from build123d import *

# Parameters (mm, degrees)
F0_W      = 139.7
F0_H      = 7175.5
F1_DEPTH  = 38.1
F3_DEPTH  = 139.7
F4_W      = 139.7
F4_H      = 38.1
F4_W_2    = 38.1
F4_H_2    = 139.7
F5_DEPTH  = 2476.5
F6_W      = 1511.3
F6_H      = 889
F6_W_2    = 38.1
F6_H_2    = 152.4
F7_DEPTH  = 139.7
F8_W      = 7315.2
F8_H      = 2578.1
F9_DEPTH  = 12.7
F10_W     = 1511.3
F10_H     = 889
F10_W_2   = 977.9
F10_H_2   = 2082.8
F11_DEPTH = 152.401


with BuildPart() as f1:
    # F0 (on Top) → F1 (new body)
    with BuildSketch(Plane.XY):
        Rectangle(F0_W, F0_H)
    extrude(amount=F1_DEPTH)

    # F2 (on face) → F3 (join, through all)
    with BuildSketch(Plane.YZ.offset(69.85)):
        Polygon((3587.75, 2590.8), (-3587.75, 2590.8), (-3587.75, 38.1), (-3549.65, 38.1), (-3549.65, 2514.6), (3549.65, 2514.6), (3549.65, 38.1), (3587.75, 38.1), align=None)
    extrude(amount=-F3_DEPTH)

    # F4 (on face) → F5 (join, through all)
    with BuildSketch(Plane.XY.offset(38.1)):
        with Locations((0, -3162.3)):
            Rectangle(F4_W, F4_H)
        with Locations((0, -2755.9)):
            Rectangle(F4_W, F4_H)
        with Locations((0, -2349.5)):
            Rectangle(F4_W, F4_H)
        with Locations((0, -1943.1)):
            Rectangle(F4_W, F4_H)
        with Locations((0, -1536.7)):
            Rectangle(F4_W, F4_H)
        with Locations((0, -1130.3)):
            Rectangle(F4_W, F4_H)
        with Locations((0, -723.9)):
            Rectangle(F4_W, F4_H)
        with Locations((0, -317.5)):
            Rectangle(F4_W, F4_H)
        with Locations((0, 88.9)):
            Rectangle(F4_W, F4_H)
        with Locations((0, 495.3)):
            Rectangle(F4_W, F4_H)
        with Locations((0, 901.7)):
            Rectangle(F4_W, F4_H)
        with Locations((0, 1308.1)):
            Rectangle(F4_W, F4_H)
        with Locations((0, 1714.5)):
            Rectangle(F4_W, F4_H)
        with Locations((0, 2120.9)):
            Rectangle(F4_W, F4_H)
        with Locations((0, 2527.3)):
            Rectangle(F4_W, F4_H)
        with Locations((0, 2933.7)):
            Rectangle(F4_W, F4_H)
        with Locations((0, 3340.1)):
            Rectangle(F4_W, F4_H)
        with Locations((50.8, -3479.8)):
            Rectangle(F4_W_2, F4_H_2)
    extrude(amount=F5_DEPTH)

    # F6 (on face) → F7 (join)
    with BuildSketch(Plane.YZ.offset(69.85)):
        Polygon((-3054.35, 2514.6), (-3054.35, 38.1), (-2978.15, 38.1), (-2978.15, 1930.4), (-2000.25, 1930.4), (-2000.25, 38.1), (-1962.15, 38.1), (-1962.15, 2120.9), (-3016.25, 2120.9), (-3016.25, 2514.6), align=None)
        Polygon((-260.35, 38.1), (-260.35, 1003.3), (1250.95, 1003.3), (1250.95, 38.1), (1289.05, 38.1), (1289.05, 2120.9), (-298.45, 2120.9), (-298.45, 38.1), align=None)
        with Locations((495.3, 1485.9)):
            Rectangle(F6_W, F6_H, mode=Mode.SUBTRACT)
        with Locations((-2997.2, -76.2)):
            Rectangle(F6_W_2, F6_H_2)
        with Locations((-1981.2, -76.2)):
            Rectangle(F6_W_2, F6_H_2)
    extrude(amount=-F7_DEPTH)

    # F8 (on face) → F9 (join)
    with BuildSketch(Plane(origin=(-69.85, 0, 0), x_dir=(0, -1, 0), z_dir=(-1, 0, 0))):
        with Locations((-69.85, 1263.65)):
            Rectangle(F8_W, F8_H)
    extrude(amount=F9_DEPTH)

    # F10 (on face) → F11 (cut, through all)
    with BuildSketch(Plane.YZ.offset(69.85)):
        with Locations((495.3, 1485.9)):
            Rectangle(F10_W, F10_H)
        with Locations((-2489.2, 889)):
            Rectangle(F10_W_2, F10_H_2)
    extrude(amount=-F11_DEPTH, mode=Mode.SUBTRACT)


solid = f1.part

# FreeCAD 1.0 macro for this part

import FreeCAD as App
import Part
import Sketcher
Q = App.Units.Quantity


def add_polygon(sketch, points):
    """Adds a closed chain of lines whose ends are joined by coincident constraints."""
    first, n = sketch.GeometryCount, len(points)
    for a, b in zip(points, points[1:] + points[:1]):
        sketch.addGeometry(Part.LineSegment(App.Vector(*a, 0), App.Vector(*b, 0)), False)
    for i in range(n):
        sketch.addConstraint(Sketcher.Constraint("Coincident", first + i, 2, first + (i + 1) % n, 1))

doc = App.newDocument("Part")
params = doc.addObject("Spreadsheet::Sheet", "Params")
for row, (alias, value) in enumerate([
    ("sketch1_width", "5.5 in"),
    ("sketch1_height", "282.5 in"),
    ("pad1_length", "1.5 in"),
    ("sketch2_width", "282.5 in"),
    ("sketch2_width2", "1.5 in"),
    ("sketch2_height", "100.5 in"),
    ("sketch2_height2", "97.5 in"),
    ("pad2_length", "5.5 in"),
    ("sketch3_width", "5.5 in"),
    ("sketch3_width2", "1.5 in"),
    ("sketch4_width", "3 in"),
    ("sketch4_height", "82 in"),
    ("sketch4_height2", "38 in"),
    ("sketch4_height3", "35 in"),
    ("sketch4_height4", "6 in"),
    ("pad4_length", "5.5 in"),
    ("sketch5_width", "288 in"),
    ("sketch5_height", "101.5 in"),
    ("pad5_length", "0.5 in"),
    ("sketch6_height", "35 in"),
    ("sketch6_height2", "82 in"),
    ("sketch6_width", "59.5 in"),
    ("sketch6_width2", "38.5 in"),
], start=1):
    params.set(f"A{row}", alias)
    params.set(f"B{row}", "=" + value)
    params.setAlias(f"B{row}", alias)

body = doc.addObject("PartDesign::Body", "Body")

# Sketch on XY plane
sketch1 = doc.addObject("Sketcher::SketchObject", "Sketch")
body.addObject(sketch1)
sketch1.AttachmentSupport = (doc.XY_Plane, [""])
sketch1.MapMode = "FlatFace"
add_polygon(sketch1, [(-70, 3588), (-70, -3588), (70, -3588), (70, 3588)])  # lines 0-3
sketch1.addConstraint([
    Sketcher.Constraint("Vertical", 0),
    Sketcher.Constraint("Horizontal", 1),
    Sketcher.Constraint("Vertical", 2),
    Sketcher.Constraint("Horizontal", 3),
    Sketcher.Constraint("Symmetric", 0, 2, 2, 2, -1, 1),
    Sketcher.Constraint("DistanceX", 1, 1, 1, 2, Q("5.5 in")),
    Sketcher.Constraint("DistanceY", 0, 2, 0, 1, Q("282.5 in")),
])
sketch1.setExpression("Constraints[9]", "Params.sketch1_width")
sketch1.setExpression("Constraints[10]", "Params.sketch1_height")
pad1 = doc.addObject("PartDesign::Pad", "Pad")
body.addObject(pad1)
pad1.Profile = sketch1
pad1.setExpression("Length", "Params.pad1_length")

# Sketch on YZ plane
sketch2 = doc.addObject("Sketcher::SketchObject", "Sketch001")
body.addObject(sketch2)
sketch2.AttachmentSupport = (doc.YZ_Plane, [""])
sketch2.MapMode = "FlatFace"
sketch2.AttachmentOffset = App.Placement(App.Vector(0, 0, 2.75 * 25.4), App.Rotation())
add_polygon(sketch2, [(3588, 2591), (-3588, 2591), (-3588, 38), (-3550, 38), (-3550, 2515), (3550, 2515), (3550, 38), (3588, 38)])  # lines 0-7
sketch2.addConstraint([
    Sketcher.Constraint("Horizontal", 0),
    Sketcher.Constraint("Vertical", 1),
    Sketcher.Constraint("Horizontal", 2),
    Sketcher.Constraint("Vertical", 3),
    Sketcher.Constraint("Horizontal", 4),
    Sketcher.Constraint("Vertical", 5),
    Sketcher.Constraint("Horizontal", 6),
    Sketcher.Constraint("Vertical", 7),
    Sketcher.Constraint("Symmetric", 2, 2, 5, 2, -2),
    Sketcher.Constraint("Equal", 2, 6),
    Sketcher.Constraint("DistanceX", 0, 2, 0, 1, Q("282.5 in")),
    Sketcher.Constraint("DistanceX", 2, 1, 2, 2, Q("1.5 in")),
    Sketcher.Constraint("DistanceY", 1, 2, 1, 1, Q("100.5 in")),
    Sketcher.Constraint("DistanceY", 3, 1, 3, 2, Q("97.5 in")),
    Sketcher.Constraint("DistanceY", -1, 1, 0, 2, Q("102 in")),
])
sketch2.setExpression("Constraints[18]", "Params.sketch2_width")
sketch2.setExpression("Constraints[19]", "Params.sketch2_width2")
sketch2.setExpression("Constraints[20]", "Params.sketch2_height")
sketch2.setExpression("Constraints[21]", "Params.sketch2_height2")
pad2 = doc.addObject("PartDesign::Pad", "Pad001")
body.addObject(pad2)
pad2.Profile = sketch2
pad2.setExpression("Length", "Params.pad2_length")
pad2.Reversed = True

# Sketch on XY plane
sketch3 = doc.addObject("Sketcher::SketchObject", "Sketch002")
body.addObject(sketch3)
sketch3.AttachmentSupport = (doc.XY_Plane, [""])
sketch3.MapMode = "FlatFace"
sketch3.AttachmentOffset = App.Placement(App.Vector(0, 0, 1.5 * 25.4), App.Rotation())
add_polygon(sketch3, [(-70, -3143), (-70, -3181), (70, -3181), (70, -3143)])  # lines 0-3
add_polygon(sketch3, [(-70, -2737), (-70, -2775), (70, -2775), (70, -2737)])  # lines 4-7
add_polygon(sketch3, [(-70, -2330), (-70, -2369), (70, -2369), (70, -2330)])  # lines 8-11
add_polygon(sketch3, [(-70, -1924), (-70, -1962), (70, -1962), (70, -1924)])  # lines 12-15
add_polygon(sketch3, [(-70, -1518), (-70, -1556), (70, -1556), (70, -1518)])  # lines 16-19
add_polygon(sketch3, [(-70, -1111), (-70, -1149), (70, -1149), (70, -1111)])  # lines 20-23
add_polygon(sketch3, [(-70, -705), (-70, -743), (70, -743), (70, -705)])  # lines 24-27
add_polygon(sketch3, [(-70, -298), (-70, -337), (70, -337), (70, -298)])  # lines 28-31
add_polygon(sketch3, [(-70, 108), (-70, 70), (70, 70), (70, 108)])  # lines 32-35
add_polygon(sketch3, [(-70, 514), (-70, 476), (70, 476), (70, 514)])  # lines 36-39
add_polygon(sketch3, [(-70, 921), (-70, 883), (70, 883), (70, 921)])  # lines 40-43
add_polygon(sketch3, [(-70, 1327), (-70, 1289), (70, 1289), (70, 1327)])  # lines 44-47
add_polygon(sketch3, [(-70, 1734), (-70, 1695), (70, 1695), (70, 1734)])  # lines 48-51
add_polygon(sketch3, [(-70, 2140), (-70, 2102), (70, 2102), (70, 2140)])  # lines 52-55
add_polygon(sketch3, [(-70, 2546), (-70, 2508), (70, 2508), (70, 2546)])  # lines 56-59
add_polygon(sketch3, [(-70, 2953), (-70, 2915), (70, 2915), (70, 2953)])  # lines 60-63
add_polygon(sketch3, [(-70, 3359), (-70, 3321), (70, 3321), (70, 3359)])  # lines 64-67
add_polygon(sketch3, [(32, -3410), (32, -3550), (70, -3550), (70, -3410)])  # lines 68-71
sketch3.addConstraint([
    Sketcher.Constraint("Vertical", 0),
    Sketcher.Constraint("Horizontal", 1),
    Sketcher.Constraint("Vertical", 2),
    Sketcher.Constraint("Horizontal", 3),
    Sketcher.Constraint("Vertical", 4),
    Sketcher.Constraint("Horizontal", 5),
    Sketcher.Constraint("Vertical", 6),
    Sketcher.Constraint("Horizontal", 7),
    Sketcher.Constraint("Vertical", 8),
    Sketcher.Constraint("Horizontal", 9),
    Sketcher.Constraint("Vertical", 10),
    Sketcher.Constraint("Horizontal", 11),
    Sketcher.Constraint("Vertical", 12),
    Sketcher.Constraint("Horizontal", 13),
    Sketcher.Constraint("Vertical", 14),
    Sketcher.Constraint("Horizontal", 15),
    Sketcher.Constraint("Vertical", 16),
    Sketcher.Constraint("Horizontal", 17),
    Sketcher.Constraint("Vertical", 18),
    Sketcher.Constraint("Horizontal", 19),
    Sketcher.Constraint("Vertical", 20),
    Sketcher.Constraint("Horizontal", 21),
    Sketcher.Constraint("Vertical", 22),
    Sketcher.Constraint("Horizontal", 23),
    Sketcher.Constraint("Vertical", 24),
    Sketcher.Constraint("Horizontal", 25),
    Sketcher.Constraint("Vertical", 26),
    Sketcher.Constraint("Horizontal", 27),
    Sketcher.Constraint("Vertical", 28),
    Sketcher.Constraint("Horizontal", 29),
    Sketcher.Constraint("Vertical", 30),
    Sketcher.Constraint("Horizontal", 31),
    Sketcher.Constraint("Vertical", 32),
    Sketcher.Constraint("Horizontal", 33),
    Sketcher.Constraint("Vertical", 34),
    Sketcher.Constraint("Horizontal", 35),
    Sketcher.Constraint("Vertical", 36),
    Sketcher.Constraint("Horizontal", 37),
    Sketcher.Constraint("Vertical", 38),
    Sketcher.Constraint("Horizontal", 39),
    Sketcher.Constraint("Vertical", 40),
    Sketcher.Constraint("Horizontal", 41),
    Sketcher.Constraint("Vertical", 42),
    Sketcher.Constraint("Horizontal", 43),
    Sketcher.Constraint("Vertical", 44),
    Sketcher.Constraint("Horizontal", 45),
    Sketcher.Constraint("Vertical", 46),
    Sketcher.Constraint("Horizontal", 47),
    Sketcher.Constraint("Vertical", 48),
    Sketcher.Constraint("Horizontal", 49),
    Sketcher.Constraint("Vertical", 50),
    Sketcher.Constraint("Horizontal", 51),
    Sketcher.Constraint("Vertical", 52),
    Sketcher.Constraint("Horizontal", 53),
    Sketcher.Constraint("Vertical", 54),
    Sketcher.Constraint("Horizontal", 55),
    Sketcher.Constraint("Vertical", 56),
    Sketcher.Constraint("Horizontal", 57),
    Sketcher.Constraint("Vertical", 58),
    Sketcher.Constraint("Horizontal", 59),
    Sketcher.Constraint("Vertical", 60),
    Sketcher.Constraint("Horizontal", 61),
    Sketcher.Constraint("Vertical", 62),
    Sketcher.Constraint("Horizontal", 63),
    Sketcher.Constraint("Vertical", 64),
    Sketcher.Constraint("Horizontal", 65),
    Sketcher.Constraint("Vertical", 66),
    Sketcher.Constraint("Horizontal", 67),
    Sketcher.Constraint("Vertical", 68),
    Sketcher.Constraint("Horizontal", 69),
    Sketcher.Constraint("Vertical", 70),
    Sketcher.Constraint("Horizontal", 71),
    Sketcher.Constraint("Vertical", 3, 2, 4, 2),
    Sketcher.Constraint("Vertical", 2, 2, 5, 2),
    Sketcher.Constraint("Vertical", 7, 2, 8, 2),
    Sketcher.Constraint("Vertical", 6, 2, 9, 2),
    Sketcher.Constraint("Vertical", 11, 2, 12, 2),
    Sketcher.Constraint("Vertical", 10, 2, 13, 2),
    Sketcher.Constraint("Vertical", 15, 2, 16, 2),
    Sketcher.Constraint("Vertical", 14, 2, 17, 2),
    Sketcher.Constraint("Vertical", 19, 2, 20, 2),
    Sketcher.Constraint("Vertical", 18, 2, 21, 2),
    Sketcher.Constraint("Vertical", 23, 2, 24, 2),
    Sketcher.Constraint("Vertical", 22, 2, 25, 2),
    Sketcher.Constraint("Vertical", 27, 2, 28, 2),
    Sketcher.Constraint("Vertical", 26, 2, 29, 2),
    Sketcher.Constraint("Vertical", 31, 2, 32, 2),
    Sketcher.Constraint("Vertical", 30, 2, 33, 2),
    Sketcher.Constraint("Vertical", 35, 2, 36, 2),
    Sketcher.Constraint("Vertical", 34, 2, 37, 2),
    Sketcher.Constraint("Vertical", 39, 2, 40, 2),
    Sketcher.Constraint("Vertical", 38, 2, 41, 2),
    Sketcher.Constraint("Vertical", 43, 2, 44, 2),
    Sketcher.Constraint("Vertical", 42, 2, 45, 2),
    Sketcher.Constraint("Vertical", 47, 2, 48, 2),
    Sketcher.Constraint("Vertical", 46, 2, 49, 2),
    Sketcher.Constraint("Vertical", 51, 2, 52, 2),
    Sketcher.Constraint("Vertical", 50, 2, 53, 2),
    Sketcher.Constraint("Vertical", 55, 2, 56, 2),
    Sketcher.Constraint("Vertical", 54, 2, 57, 2),
    Sketcher.Constraint("Vertical", 59, 2, 60, 2),
    Sketcher.Constraint("Vertical", 58, 2, 61, 2),
    Sketcher.Constraint("Vertical", 63, 2, 64, 2),
    Sketcher.Constraint("Vertical", 62, 2, 65, 2),
    Sketcher.Constraint("Vertical", 66, 2, 69, 2),
    Sketcher.Constraint("Equal", 71, 0),
    Sketcher.Constraint("Equal", 2, 4),
    Sketcher.Constraint("Equal", 6, 8),
    Sketcher.Constraint("Equal", 10, 12),
    Sketcher.Constraint("Equal", 14, 16),
    Sketcher.Constraint("Equal", 18, 20),
    Sketcher.Constraint("Equal", 22, 24),
    Sketcher.Constraint("Equal", 26, 28),
    Sketcher.Constraint("Equal", 30, 32),
    Sketcher.Constraint("Equal", 34, 36),
    Sketcher.Constraint("Equal", 38, 40),
    Sketcher.Constraint("Equal", 42, 44),
    Sketcher.Constraint("Equal", 46, 48),
    Sketcher.Constraint("Equal", 50, 52),
    Sketcher.Constraint("Equal", 54, 56),
    Sketcher.Constraint("Equal", 58, 60),
    Sketcher.Constraint("Equal", 62, 64),
    Sketcher.Constraint("Equal", 67, 68),
    Sketcher.Constraint("DistanceX", 1, 1, 1, 2, Q("5.5 in")),
    Sketcher.Constraint("DistanceX", 69, 1, 69, 2, Q("1.5 in")),
    Sketcher.Constraint("DistanceX", 0, 2, -1, 1, Q("2.75 in")),
    Sketcher.Constraint("DistanceY", 0, 2, -1, 1, Q("125.25 in")),
    Sketcher.Constraint("DistanceY", 4, 2, -1, 1, Q("109.25 in")),
    Sketcher.Constraint("DistanceY", 8, 2, -1, 1, Q("93.25 in")),
    Sketcher.Constraint("DistanceY", 12, 2, -1, 1, Q("77.25 in")),
    Sketcher.Constraint("DistanceY", 16, 2, -1, 1, Q("61.25 in")),
    Sketcher.Constraint("DistanceY", 20, 2, -1, 1, Q("45.25 in")),
    Sketcher.Constraint("DistanceY", 24, 2, -1, 1, Q("29.25 in")),
    Sketcher.Constraint("DistanceY", 28, 2, -1, 1, Q("13.25 in")),
    Sketcher.Constraint("DistanceY", -1, 1, 32, 2, Q("2.75 in")),
    Sketcher.Constraint("DistanceY", -1, 1, 36, 2, Q("18.75 in")),
    Sketcher.Constraint("DistanceY", -1, 1, 40, 2, Q("34.75 in")),
    Sketcher.Constraint("DistanceY", -1, 1, 44, 2, Q("50.75 in")),
    Sketcher.Constraint("DistanceY", -1, 1, 48, 2, Q("66.75 in")),
    Sketcher.Constraint("DistanceY", -1, 1, 52, 2, Q("82.75 in")),
    Sketcher.Constraint("DistanceY", -1, 1, 56, 2, Q("98.75 in")),
    Sketcher.Constraint("DistanceY", -1, 1, 60, 2, Q("114.75 in")),
    Sketcher.Constraint("DistanceY", -1, 1, 64, 2, Q("130.75 in")),
    Sketcher.Constraint("DistanceY", 68, 2, -1, 1, Q("139.75 in")),
])
sketch3.setExpression("Constraints[195]", "Params.sketch3_width")
sketch3.setExpression("Constraints[196]", "Params.sketch3_width2")
pad3 = doc.addObject("PartDesign::Pad", "Pad002")
body.addObject(pad3)
pad3.Profile = sketch3
pad3.Type = "UpToLast"

# Sketch on YZ plane
sketch4 = doc.addObject("Sketcher::SketchObject", "Sketch003")
body.addObject(sketch4)
sketch4.AttachmentSupport = (doc.YZ_Plane, [""])
sketch4.MapMode = "FlatFace"
sketch4.AttachmentOffset = App.Placement(App.Vector(0, 0, 2.75 * 25.4), App.Rotation())
add_polygon(sketch4, [(-3054, 2515), (-3054, 38), (-2978, 38), (-2978, 1930), (-2000, 1930), (-2000, 38), (-1962, 38), (-1962, 2121), (-3016, 2121), (-3016, 2515)])  # lines 0-9
add_polygon(sketch4, [(-260, 38), (-260, 1003), (1251, 1003), (1251, 38), (1289, 38), (1289, 2121), (-298, 2121), (-298, 38)])  # lines 10-17
add_polygon(sketch4, [(1251, 1041), (-260, 1041), (-260, 1930), (1251, 1930)])  # lines 18-21
add_polygon(sketch4, [(-3016, 0), (-3016, -152), (-2978, -152), (-2978, 0)])  # lines 22-25
add_polygon(sketch4, [(-2000, 0), (-2000, -152), (-1962, -152), (-1962, 0)])  # lines 26-29
sketch4.addConstraint([
    Sketcher.Constraint("Vertical", 0),
    Sketcher.Constraint("Horizontal", 1),
    Sketcher.Constraint("Vertical", 2),
    Sketcher.Constraint("Horizontal", 3),
    Sketcher.Constraint("Vertical", 4),
    Sketcher.Constraint("Horizontal", 5),
    Sketcher.Constraint("Vertical", 6),
    Sketcher.Constraint("Horizontal", 7),
    Sketcher.Constraint("Vertical", 8),
    Sketcher.Constraint("Horizontal", 9),
    Sketcher.Constraint("Vertical", 10),
    Sketcher.Constraint("Horizontal", 11),
    Sketcher.Constraint("Vertical", 12),
    Sketcher.Constraint("Horizontal", 13),
    Sketcher.Constraint("Vertical", 14),
    Sketcher.Constraint("Horizontal", 15),
    Sketcher.Constraint("Vertical", 16),
    Sketcher.Constraint("Horizontal", 17),
    Sketcher.Constraint("Horizontal", 18),
    Sketcher.Constraint("Vertical", 19),
    Sketcher.Constraint("Horizontal", 20),
    Sketcher.Constraint("Vertical", 21),
    Sketcher.Constraint("Vertical", 22),
    Sketcher.Constraint("Horizontal", 23),
    Sketcher.Constraint("Vertical", 24),
    Sketcher.Constraint("Horizontal", 25),
    Sketcher.Constraint("Vertical", 26),
    Sketcher.Constraint("Horizontal", 27),
    Sketcher.Constraint("Vertical", 28),
    Sketcher.Constraint("Horizontal", 29),
    Sketcher.Constraint("PointOnObject", 24, 2, -1),
    Sketcher.Constraint("PointOnObject", 28, 2, -1),
    Sketcher.Constraint("Horizontal", 1, 2, 4, 2),
    Sketcher.Constraint("Horizontal", 5, 2, 12, 2),
    Sketcher.Constraint("Horizontal", 7, 2, 14, 2),
    Sketcher.Constraint("Horizontal", 13, 2, 16, 2),
    Sketcher.Constraint("Horizontal", 3, 2, 19, 2),
    Sketcher.Constraint("Horizontal", 23, 2, 26, 2),
    Sketcher.Constraint("Vertical", 17, 2, 18, 2),
    Sketcher.Constraint("Vertical", 12, 2, 20, 2),
    Sketcher.Constraint("Vertical", 8, 2, 22, 2),
    Sketcher.Constraint("Vertical", 2, 2, 23, 2),
    Sketcher.Constraint("Vertical", 4, 2, 26, 2),
    Sketcher.Constraint("Vertical", 6, 2, 27, 2),
    Sketcher.Constraint("Equal", 5, 9),
    Sketcher.Constraint("Equal", 9, 13),
    Sketcher.Constraint("Equal", 13, 17),
    Sketcher.Constraint("Equal", 17, 23),
    Sketcher.Constraint("DistanceX", 1, 1, 1, 2, Q("3 in")),
    Sketcher.Constraint("DistanceY", 6, 1, 6, 2, Q("82 in")),
    Sketcher.Constraint("DistanceY", 10, 1, 10, 2, Q("38 in")),
    Sketcher.Constraint("DistanceY", 19, 1, 19, 2, Q("35 in")),
    Sketcher.Constraint("DistanceY", 22, 2, 22, 1, Q("6 in")),
    Sketcher.Constraint("DistanceX", 3, 1, 3, 2, Q("38.5 in")),
    Sketcher.Constraint("DistanceX", 11, 1, 11, 2, Q("59.5 in")),
    Sketcher.Constraint("DistanceY", 0, 2, 0, 1, Q("97.5 in")),
    Sketcher.Constraint("DistanceY", 2, 1, 2, 2, Q("74.5 in")),
    Sketcher.Constraint("DistanceY", -1, 1, 2, 2, Q("76 in")),
    Sketcher.Constraint("DistanceX", 5, 2, 10, 2, Q("67 in")),
    Sketcher.Constraint("DistanceX", 0, 2, -1, 1, Q("120.25 in")),
])
sketch4.setExpression("Constraints[78]", "Params.sketch4_width")
sketch4.setExpression("Constraints[79]", "Params.sketch4_height")
sketch4.setExpression("Constraints[80]", "Params.sketch4_height2")
sketch4.setExpression("Constraints[81]", "Params.sketch4_height3")
sketch4.setExpression("Constraints[82]", "Params.sketch4_height4")
pad4 = doc.addObject("PartDesign::Pad", "Pad003")
body.addObject(pad4)
pad4.Profile = sketch4
pad4.setExpression("Length", "Params.pad4_length")
pad4.Reversed = True

# Sketch on YZ plane
sketch5 = doc.addObject("Sketcher::SketchObject", "Sketch004")
body.addObject(sketch5)
sketch5.AttachmentSupport = (doc.YZ_Plane, [""])
sketch5.MapMode = "FlatFace"
sketch5.AttachmentOffset = App.Placement(App.Vector(0, 0, -2.75 * 25.4), App.Rotation())
add_polygon(sketch5, [(3727, 2553), (3727, -25), (-3588, -25), (-3588, 2553)])  # lines 0-3
sketch5.addConstraint([
    Sketcher.Constraint("Vertical", 0),
    Sketcher.Constraint("Horizontal", 1),
    Sketcher.Constraint("Vertical", 2),
    Sketcher.Constraint("Horizontal", 3),
    Sketcher.Constraint("DistanceX", 1, 2, 1, 1, Q("288 in")),
    Sketcher.Constraint("DistanceY", 0, 2, 0, 1, Q("101.5 in")),
    Sketcher.Constraint("DistanceY", 0, 2, -1, 1, Q("1 in")),
    Sketcher.Constraint("DistanceX", -1, 1, 0, 2, Q("146.75 in")),
])
sketch5.setExpression("Constraints[8]", "Params.sketch5_width")
sketch5.setExpression("Constraints[9]", "Params.sketch5_height")
pad5 = doc.addObject("PartDesign::Pad", "Pad004")
body.addObject(pad5)
pad5.Profile = sketch5
pad5.setExpression("Length", "Params.pad5_length")
pad5.Reversed = True

# Sketch on YZ plane
sketch6 = doc.addObject("Sketcher::SketchObject", "Sketch005")
body.addObject(sketch6)
sketch6.AttachmentSupport = (doc.YZ_Plane, [""])
sketch6.MapMode = "FlatFace"
sketch6.AttachmentOffset = App.Placement(App.Vector(0, 0, 2.75 * 25.4), App.Rotation())
add_polygon(sketch6, [(-260, 1930), (-260, 1041), (1251, 1041), (1251, 1930)])  # lines 0-3
add_polygon(sketch6, [(-2978, 1930), (-2978, -152), (-2000, -152), (-2000, 1930)])  # lines 4-7
sketch6.addConstraint([
    Sketcher.Constraint("Vertical", 0),
    Sketcher.Constraint("Horizontal", 1),
    Sketcher.Constraint("Vertical", 2),
    Sketcher.Constraint("Horizontal", 3),
    Sketcher.Constraint("Vertical", 4),
    Sketcher.Constraint("Horizontal", 5),
    Sketcher.Constraint("Vertical", 6),
    Sketcher.Constraint("Horizontal", 7),
    Sketcher.Constraint("Horizontal", 3, 2, 6, 2),
    Sketcher.Constraint("DistanceY", 0, 2, 0, 1, Q("35 in")),
    Sketcher.Constraint("DistanceY", 4, 2, 4, 1, Q("82 in")),
    Sketcher.Constraint("DistanceX", 1, 1, 1, 2, Q("59.5 in")),
    Sketcher.Constraint("DistanceX", 5, 1, 5, 2, Q("38.5 in")),
    Sketcher.Constraint("DistanceY", -1, 1, 0, 2, Q("41 in")),
    Sketcher.Constraint("DistanceX", 4, 2, 0, 2, Q("107 in")),
    Sketcher.Constraint("DistanceX", 0, 2, -1, 1, Q("10.25 in")),
])
sketch6.setExpression("Constraints[17]", "Params.sketch6_height")
sketch6.setExpression("Constraints[18]", "Params.sketch6_height2")
sketch6.setExpression("Constraints[19]", "Params.sketch6_width")
sketch6.setExpression("Constraints[20]", "Params.sketch6_width2")
pocket1 = doc.addObject("PartDesign::Pocket", "Pocket")
body.addObject(pocket1)
pocket1.Profile = sketch6
pocket1.Type = "ThroughAll"

doc.recompute()
